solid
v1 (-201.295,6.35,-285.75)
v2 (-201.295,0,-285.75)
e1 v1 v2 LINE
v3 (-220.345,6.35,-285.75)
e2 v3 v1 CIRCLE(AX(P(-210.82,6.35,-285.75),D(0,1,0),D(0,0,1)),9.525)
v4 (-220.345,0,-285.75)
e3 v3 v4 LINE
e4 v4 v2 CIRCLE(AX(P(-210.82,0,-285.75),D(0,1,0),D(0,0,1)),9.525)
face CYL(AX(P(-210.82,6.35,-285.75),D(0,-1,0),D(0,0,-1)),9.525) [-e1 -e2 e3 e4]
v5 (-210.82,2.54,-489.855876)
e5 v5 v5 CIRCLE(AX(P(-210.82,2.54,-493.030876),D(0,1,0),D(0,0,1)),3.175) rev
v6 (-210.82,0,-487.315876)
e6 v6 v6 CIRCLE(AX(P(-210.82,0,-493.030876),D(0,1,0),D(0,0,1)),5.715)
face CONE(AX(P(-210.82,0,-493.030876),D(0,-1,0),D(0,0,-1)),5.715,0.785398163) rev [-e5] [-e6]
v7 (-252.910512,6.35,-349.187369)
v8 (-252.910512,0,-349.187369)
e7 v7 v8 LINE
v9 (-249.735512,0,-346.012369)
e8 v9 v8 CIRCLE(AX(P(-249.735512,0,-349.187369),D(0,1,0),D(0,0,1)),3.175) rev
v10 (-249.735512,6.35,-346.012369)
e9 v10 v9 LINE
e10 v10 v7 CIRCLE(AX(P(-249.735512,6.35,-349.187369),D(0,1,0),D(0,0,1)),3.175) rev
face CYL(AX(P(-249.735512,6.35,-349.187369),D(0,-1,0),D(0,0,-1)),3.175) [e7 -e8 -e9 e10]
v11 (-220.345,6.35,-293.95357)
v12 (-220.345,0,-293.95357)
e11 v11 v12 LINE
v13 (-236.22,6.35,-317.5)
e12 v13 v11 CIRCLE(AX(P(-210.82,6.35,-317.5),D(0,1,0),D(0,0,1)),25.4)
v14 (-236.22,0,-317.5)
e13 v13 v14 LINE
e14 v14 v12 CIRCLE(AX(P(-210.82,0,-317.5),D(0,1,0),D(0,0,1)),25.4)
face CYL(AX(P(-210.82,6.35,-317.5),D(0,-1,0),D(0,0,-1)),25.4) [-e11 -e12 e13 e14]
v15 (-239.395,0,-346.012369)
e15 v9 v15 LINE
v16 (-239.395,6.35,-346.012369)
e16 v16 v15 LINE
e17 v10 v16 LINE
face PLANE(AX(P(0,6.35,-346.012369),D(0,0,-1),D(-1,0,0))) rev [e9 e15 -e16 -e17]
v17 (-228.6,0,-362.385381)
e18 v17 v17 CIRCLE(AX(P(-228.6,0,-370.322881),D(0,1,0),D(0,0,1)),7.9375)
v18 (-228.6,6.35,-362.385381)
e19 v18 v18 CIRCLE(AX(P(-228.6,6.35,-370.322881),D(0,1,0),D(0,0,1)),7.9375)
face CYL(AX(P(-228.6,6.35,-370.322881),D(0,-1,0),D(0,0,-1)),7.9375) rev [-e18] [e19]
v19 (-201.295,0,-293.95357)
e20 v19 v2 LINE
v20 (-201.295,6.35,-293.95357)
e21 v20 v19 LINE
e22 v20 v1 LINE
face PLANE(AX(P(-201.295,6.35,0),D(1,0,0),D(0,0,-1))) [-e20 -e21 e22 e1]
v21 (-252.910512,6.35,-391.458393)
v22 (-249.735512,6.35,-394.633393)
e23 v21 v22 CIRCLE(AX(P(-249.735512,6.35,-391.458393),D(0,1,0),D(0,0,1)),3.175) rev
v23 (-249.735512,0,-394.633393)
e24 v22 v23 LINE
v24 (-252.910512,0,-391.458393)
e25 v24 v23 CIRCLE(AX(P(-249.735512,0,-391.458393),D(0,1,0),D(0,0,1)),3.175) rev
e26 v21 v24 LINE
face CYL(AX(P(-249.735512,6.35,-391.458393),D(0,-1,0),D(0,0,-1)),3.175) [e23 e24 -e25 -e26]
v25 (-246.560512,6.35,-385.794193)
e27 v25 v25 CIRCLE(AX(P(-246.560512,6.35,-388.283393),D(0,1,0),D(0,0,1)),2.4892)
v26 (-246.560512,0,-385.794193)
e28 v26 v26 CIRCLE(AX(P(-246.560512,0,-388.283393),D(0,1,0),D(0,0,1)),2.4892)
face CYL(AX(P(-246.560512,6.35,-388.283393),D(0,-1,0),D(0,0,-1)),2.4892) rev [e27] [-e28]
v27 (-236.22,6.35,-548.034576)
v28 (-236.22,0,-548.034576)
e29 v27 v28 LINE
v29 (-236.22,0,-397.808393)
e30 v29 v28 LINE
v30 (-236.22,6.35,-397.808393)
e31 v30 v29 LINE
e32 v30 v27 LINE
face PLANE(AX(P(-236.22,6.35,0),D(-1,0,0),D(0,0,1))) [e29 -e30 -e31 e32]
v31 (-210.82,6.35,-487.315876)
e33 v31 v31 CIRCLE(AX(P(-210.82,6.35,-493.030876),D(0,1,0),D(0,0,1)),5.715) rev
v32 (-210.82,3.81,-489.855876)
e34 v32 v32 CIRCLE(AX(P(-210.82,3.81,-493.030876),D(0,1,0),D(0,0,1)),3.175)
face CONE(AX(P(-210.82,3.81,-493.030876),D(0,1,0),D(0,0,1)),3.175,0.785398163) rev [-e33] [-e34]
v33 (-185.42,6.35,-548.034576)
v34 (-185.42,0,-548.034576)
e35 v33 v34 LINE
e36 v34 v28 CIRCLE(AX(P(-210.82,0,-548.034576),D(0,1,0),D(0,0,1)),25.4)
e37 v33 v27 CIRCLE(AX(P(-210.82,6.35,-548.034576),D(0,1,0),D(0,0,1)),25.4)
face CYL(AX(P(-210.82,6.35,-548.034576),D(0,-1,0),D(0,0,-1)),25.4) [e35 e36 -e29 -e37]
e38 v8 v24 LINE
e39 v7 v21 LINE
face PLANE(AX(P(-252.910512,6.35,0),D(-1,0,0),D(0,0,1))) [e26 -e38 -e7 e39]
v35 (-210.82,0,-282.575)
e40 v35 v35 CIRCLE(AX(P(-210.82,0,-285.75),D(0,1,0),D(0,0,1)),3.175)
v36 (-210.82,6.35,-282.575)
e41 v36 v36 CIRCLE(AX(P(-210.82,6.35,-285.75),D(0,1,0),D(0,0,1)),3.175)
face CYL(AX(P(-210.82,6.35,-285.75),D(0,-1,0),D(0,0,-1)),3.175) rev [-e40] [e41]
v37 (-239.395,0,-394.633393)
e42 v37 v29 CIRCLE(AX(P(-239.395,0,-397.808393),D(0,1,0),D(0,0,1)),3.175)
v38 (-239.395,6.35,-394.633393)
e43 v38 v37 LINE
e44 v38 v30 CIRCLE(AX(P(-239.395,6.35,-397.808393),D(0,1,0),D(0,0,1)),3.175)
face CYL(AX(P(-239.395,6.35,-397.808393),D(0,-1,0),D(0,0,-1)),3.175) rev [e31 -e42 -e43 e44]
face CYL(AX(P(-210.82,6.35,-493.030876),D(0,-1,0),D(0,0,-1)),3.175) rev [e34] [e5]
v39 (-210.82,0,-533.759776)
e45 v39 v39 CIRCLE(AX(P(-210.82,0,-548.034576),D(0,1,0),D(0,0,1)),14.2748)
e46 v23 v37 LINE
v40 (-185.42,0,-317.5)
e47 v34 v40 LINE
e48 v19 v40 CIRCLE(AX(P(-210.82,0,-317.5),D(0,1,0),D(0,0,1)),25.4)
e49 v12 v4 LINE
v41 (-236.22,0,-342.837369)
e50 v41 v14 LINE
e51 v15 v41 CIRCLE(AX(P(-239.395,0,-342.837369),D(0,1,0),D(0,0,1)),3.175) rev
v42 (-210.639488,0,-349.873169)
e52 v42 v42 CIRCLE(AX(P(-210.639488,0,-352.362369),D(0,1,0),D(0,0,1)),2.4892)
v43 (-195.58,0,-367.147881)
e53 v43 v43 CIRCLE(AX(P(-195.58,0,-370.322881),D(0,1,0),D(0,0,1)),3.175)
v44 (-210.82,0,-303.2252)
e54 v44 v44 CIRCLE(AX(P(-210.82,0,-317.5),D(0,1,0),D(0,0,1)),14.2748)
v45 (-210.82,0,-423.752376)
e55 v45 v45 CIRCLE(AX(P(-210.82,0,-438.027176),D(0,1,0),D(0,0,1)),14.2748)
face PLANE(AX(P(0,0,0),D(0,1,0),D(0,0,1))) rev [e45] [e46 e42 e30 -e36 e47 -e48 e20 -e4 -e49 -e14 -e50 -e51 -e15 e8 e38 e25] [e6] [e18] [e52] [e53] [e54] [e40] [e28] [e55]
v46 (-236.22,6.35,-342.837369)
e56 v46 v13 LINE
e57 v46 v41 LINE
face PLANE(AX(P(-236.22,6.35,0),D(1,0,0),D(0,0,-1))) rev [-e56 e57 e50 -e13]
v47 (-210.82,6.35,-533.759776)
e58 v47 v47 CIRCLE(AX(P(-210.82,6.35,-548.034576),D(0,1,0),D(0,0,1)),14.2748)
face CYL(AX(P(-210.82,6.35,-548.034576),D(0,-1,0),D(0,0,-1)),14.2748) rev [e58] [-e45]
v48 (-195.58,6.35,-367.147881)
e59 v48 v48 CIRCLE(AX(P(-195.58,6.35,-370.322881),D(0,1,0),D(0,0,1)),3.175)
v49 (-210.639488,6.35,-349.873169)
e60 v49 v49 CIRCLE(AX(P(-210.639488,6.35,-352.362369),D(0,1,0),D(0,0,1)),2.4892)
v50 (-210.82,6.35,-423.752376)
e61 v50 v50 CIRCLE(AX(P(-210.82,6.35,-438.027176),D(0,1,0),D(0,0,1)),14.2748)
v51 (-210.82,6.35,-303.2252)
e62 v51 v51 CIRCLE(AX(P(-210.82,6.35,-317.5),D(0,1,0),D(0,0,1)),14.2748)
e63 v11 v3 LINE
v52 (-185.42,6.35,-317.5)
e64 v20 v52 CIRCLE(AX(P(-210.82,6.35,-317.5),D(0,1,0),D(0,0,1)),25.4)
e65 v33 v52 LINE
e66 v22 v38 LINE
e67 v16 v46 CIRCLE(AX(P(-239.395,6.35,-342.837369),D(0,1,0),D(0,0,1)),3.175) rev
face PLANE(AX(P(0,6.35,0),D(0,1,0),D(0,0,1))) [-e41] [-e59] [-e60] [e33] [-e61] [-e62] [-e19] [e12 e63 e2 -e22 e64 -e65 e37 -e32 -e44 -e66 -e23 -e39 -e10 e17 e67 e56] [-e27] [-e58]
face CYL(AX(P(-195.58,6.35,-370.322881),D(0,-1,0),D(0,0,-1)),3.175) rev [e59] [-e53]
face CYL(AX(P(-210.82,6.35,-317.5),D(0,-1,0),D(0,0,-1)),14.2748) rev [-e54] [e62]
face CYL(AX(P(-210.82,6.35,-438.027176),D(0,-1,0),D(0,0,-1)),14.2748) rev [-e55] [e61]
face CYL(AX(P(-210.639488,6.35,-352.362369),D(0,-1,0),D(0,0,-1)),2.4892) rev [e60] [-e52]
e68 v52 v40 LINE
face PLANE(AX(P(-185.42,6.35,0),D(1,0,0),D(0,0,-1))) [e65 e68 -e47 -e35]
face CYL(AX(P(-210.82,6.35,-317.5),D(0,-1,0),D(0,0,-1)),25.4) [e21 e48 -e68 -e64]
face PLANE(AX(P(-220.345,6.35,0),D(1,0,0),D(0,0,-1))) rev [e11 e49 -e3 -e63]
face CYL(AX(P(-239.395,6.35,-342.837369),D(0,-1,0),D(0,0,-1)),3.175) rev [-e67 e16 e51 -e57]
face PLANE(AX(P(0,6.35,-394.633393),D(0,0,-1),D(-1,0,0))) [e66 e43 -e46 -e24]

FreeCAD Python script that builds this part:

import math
import FreeCAD as App
import Part
import Sketcher

V = App.Vector
Q = App.Units.Quantity


def edges_at(feature, points):
    """Names of the edges that pass closest to the given points."""
    edges = feature.Shape.Edges
    near = lambda p: min(range(len(edges)), key=lambda i: edges[i].distToShape(Part.Vertex(*p))[0])
    return sorted({f"Edge{near(p) + 1}" for p in points})

doc = App.newDocument("Part")
params = doc.addObject("Spreadsheet::Sheet", "Params")
for row, (alias, value) in enumerate([
    ("sketch1_radius", "1 in"),
    ("sketch1_diameter", "0.25 in"),
    ("sketch1_diameter2", "0.196 in"),
    ("sketch1_diameter3", "0.625 in"),
    ("sketch1_diameter4", "1.124 in"),
    ("pad1_length", "0.25 in"),
    ("chamfer_size", "0.1 in"),
], start=1):
    params.set(f"A{row}", alias)
    params.set(f"B{row}", "=" + value)
    params.setAlias(f"B{row}", alias)

body = doc.addObject("PartDesign::Body", "Body")

# Sketch on XZ plane
sketch1 = body.newObject("Sketcher::SketchObject", "Sketch")
sketch1.AttachmentSupport = (doc.getObject("XZ_Plane"), [""])
sketch1.MapMode = "FlatFace"
sketch1.addGeometry([
    Part.LineSegment(V(-249.7, -346, 0), V(-239.4, -346, 0)),  # 0
    Part.ArcOfCircle(Part.Circle(V(-239.4, -342.8, 0), V(0, 0, 1), 3.2), math.radians(-90), math.radians(0)),  # 1
    Part.LineSegment(V(-236.2, -342.8, 0), V(-236.2, -317.5, 0)),  # 2
    Part.ArcOfCircle(Part.Circle(V(-210.8, -317.5, 0), V(0, 0, 1), 25.4), math.radians(112), math.radians(180)),  # 3
    Part.LineSegment(V(-220.3, -294, 0), V(-220.3, -285.8, 0)),  # 4
    Part.ArcOfCircle(Part.Circle(V(-210.8, -285.8, 0), V(0, 0, 1), 9.5), math.radians(0), math.radians(180)),  # 5
    Part.LineSegment(V(-201.3, -285.8, 0), V(-201.3, -294, 0)),  # 6
    Part.ArcOfCircle(Part.Circle(V(-210.8, -317.5, 0), V(0, 0, 1), 25.4), math.radians(0), math.radians(68)),  # 7
    Part.LineSegment(V(-185.4, -317.5, 0), V(-185.4, -548, 0)),  # 8
    Part.ArcOfCircle(Part.Circle(V(-210.8, -548, 0), V(0, 0, 1), 25.4), math.radians(180), math.radians(360)),  # 9
    Part.LineSegment(V(-236.2, -548, 0), V(-236.2, -397.8, 0)),  # 10
    Part.ArcOfCircle(Part.Circle(V(-239.4, -397.8, 0), V(0, 0, 1), 3.2), math.radians(0), math.radians(90)),  # 11
    Part.LineSegment(V(-239.4, -394.6, 0), V(-249.7, -394.6, 0)),  # 12
    Part.ArcOfCircle(Part.Circle(V(-249.7, -391.5, 0), V(0, 0, 1), 3.2), math.radians(-180), math.radians(-90)),  # 13
    Part.LineSegment(V(-252.9, -391.5, 0), V(-252.9, -349.2, 0)),  # 14
    Part.ArcOfCircle(Part.Circle(V(-249.7, -349.2, 0), V(0, 0, 1), 3.2), math.radians(90), math.radians(180)),  # 15
    Part.Circle(V(-246.6, -388.3, 0), V(0, 0, 1), 2.5),  # 16
    Part.Circle(V(-228.6, -370.3, 0), V(0, 0, 1), 7.9),  # 17
    Part.Circle(V(-210.8, -285.8, 0), V(0, 0, 1), 3.2),  # 18
    Part.Circle(V(-210.8, -317.5, 0), V(0, 0, 1), 14.3),  # 19
    Part.Circle(V(-210.6, -352.4, 0), V(0, 0, 1), 2.5),  # 20
    Part.Circle(V(-195.6, -370.3, 0), V(0, 0, 1), 3.2),  # 21
    Part.Circle(V(-210.8, -438, 0), V(0, 0, 1), 14.3),  # 22
    Part.Circle(V(-210.8, -493, 0), V(0, 0, 1), 3.2),  # 23
    Part.Circle(V(-210.8, -548, 0), V(0, 0, 1), 14.3),  # 24
], False)
sketch1.addConstraint([
    Sketcher.Constraint("Tangent", 0, 2, 1, 1),
    Sketcher.Constraint("Tangent", 1, 2, 2, 1),
    Sketcher.Constraint("Tangent", 2, 2, 3, 2),
    Sketcher.Constraint("Coincident", 3, 1, 4, 1),
    Sketcher.Constraint("Tangent", 4, 2, 5, 2),
    Sketcher.Constraint("Tangent", 5, 1, 6, 1),
    Sketcher.Constraint("Coincident", 6, 2, 7, 2),
    Sketcher.Constraint("Tangent", 7, 1, 8, 1),
    Sketcher.Constraint("Tangent", 8, 2, 9, 2),
    Sketcher.Constraint("Tangent", 9, 1, 10, 1),
    Sketcher.Constraint("Tangent", 10, 2, 11, 1),
    Sketcher.Constraint("Tangent", 11, 2, 12, 1),
    Sketcher.Constraint("Tangent", 12, 2, 13, 2),
    Sketcher.Constraint("Tangent", 13, 1, 14, 1),
    Sketcher.Constraint("Tangent", 14, 2, 15, 2),
    Sketcher.Constraint("Tangent", 15, 1, 0, 1),
    Sketcher.Constraint("Horizontal", 0),
    Sketcher.Constraint("Vertical", 2),
    Sketcher.Constraint("Vertical", 4),
    Sketcher.Constraint("Vertical", 6),
    Sketcher.Constraint("Vertical", 8),
    Sketcher.Constraint("Vertical", 10),
    Sketcher.Constraint("Horizontal", 12),
    Sketcher.Constraint("Vertical", 14),
    Sketcher.Constraint("Coincident", 7, 3, 3, 3),
    Sketcher.Constraint("Coincident", 18, 3, 5, 3),
    Sketcher.Constraint("Coincident", 19, 3, 3, 3),
    Sketcher.Constraint("Coincident", 24, 3, 9, 3),
    Sketcher.Constraint("Equal", 3, 7),
    Sketcher.Constraint("Equal", 7, 9),
    Sketcher.Constraint("Equal", 1, 11),
    Sketcher.Constraint("Equal", 11, 13),
    Sketcher.Constraint("Equal", 13, 15),
    Sketcher.Constraint("Equal", 15, 18),
    Sketcher.Constraint("Equal", 16, 20),
    Sketcher.Constraint("Equal", 18, 21),
    Sketcher.Constraint("Equal", 19, 22),
    Sketcher.Constraint("Equal", 21, 23),
    Sketcher.Constraint("Equal", 22, 24),
    Sketcher.Constraint("Horizontal", 17, 3, 21, 3),
    Sketcher.Constraint("Horizontal", 3, 1, 6, 2),
    Sketcher.Constraint("Vertical", 19, 3, 22, 3),
    Sketcher.Constraint("Vertical", 22, 3, 23, 3),
    Sketcher.Constraint("Radius", 3, Q("1 in")),
    Sketcher.Constraint("Diameter", 18, Q("0.25 in")),
    Sketcher.Constraint("Diameter", 16, Q("0.196 in")),
    Sketcher.Constraint("Diameter", 17, Q("0.625 in")),
    Sketcher.Constraint("Diameter", 19, Q("1.124 in")),
    Sketcher.Constraint("DistanceX", 17, 3, -1, 1, Q("9 in")),
    Sketcher.Constraint("Radius", 5, Q("0.375 in")),
    Sketcher.Constraint("DistanceX", 3, 3, -1, 1, Q("8.3 in")),
    Sketcher.Constraint("DistanceY", 3, 3, -1, 1, Q("12.5 in")),
    Sketcher.Constraint("DistanceX", 21, 3, -1, 1, Q("7.7 in")),
    Sketcher.Constraint("DistanceY", 5, 3, -1, 1, Q("11.25 in")),
    Sketcher.Constraint("DistanceY", 20, 3, 0, 2, Q("0.25 in")),
    Sketcher.Constraint("DistanceY", 11, 2, 16, 3, Q("0.25 in")),
    Sketcher.Constraint("DistanceX", 13, 1, 16, 3, Q("0.25 in")),
    Sketcher.Constraint("DistanceY", 24, 3, 22, 3, Q("4.331 in")),
    Sketcher.Constraint("DistanceY", 23, 3, 22, 3, Q("2.1655 in")),
    Sketcher.Constraint("DistanceY", 2, 1, 2, 2, Q("25.337369 mm")),
    Sketcher.Constraint("DistanceX", 0, 1, 0, 2, Q("10.340512 mm")),
    Sketcher.Constraint("DistanceY", 8, 2, 8, 1, Q("230.534576 mm")),
    Sketcher.Constraint("DistanceY", 10, 1, 10, 2, Q("150.226183 mm")),
    Sketcher.Constraint("DistanceY", 17, 3, -1, 1, Q("370.322881 mm")),
    Sketcher.Constraint("DistanceX", 20, 3, -1, 1, Q("210.639488 mm")),
])
sketch1.setExpression("Constraints[43]", "Params.sketch1_radius")
sketch1.setExpression("Constraints[44]", "Params.sketch1_diameter")
sketch1.setExpression("Constraints[45]", "Params.sketch1_diameter2")
sketch1.setExpression("Constraints[46]", "Params.sketch1_diameter3")
sketch1.setExpression("Constraints[47]", "Params.sketch1_diameter4")
pad1 = body.newObject("PartDesign::Pad", "Pad")
pad1.Profile = sketch1
pad1.setExpression("Length", "Params.pad1_length")
pad1.Reversed = True
doc.recompute()

chamfer = body.newObject("PartDesign::Chamfer", "Chamfer")
chamfer.Base = (pad1, edges_at(pad1, [(-213.995, 6.35, -493.031), (-213.995, 0, -493.031)]))
chamfer.setExpression("Size", "Params.chamfer_size")

doc.recompute()
